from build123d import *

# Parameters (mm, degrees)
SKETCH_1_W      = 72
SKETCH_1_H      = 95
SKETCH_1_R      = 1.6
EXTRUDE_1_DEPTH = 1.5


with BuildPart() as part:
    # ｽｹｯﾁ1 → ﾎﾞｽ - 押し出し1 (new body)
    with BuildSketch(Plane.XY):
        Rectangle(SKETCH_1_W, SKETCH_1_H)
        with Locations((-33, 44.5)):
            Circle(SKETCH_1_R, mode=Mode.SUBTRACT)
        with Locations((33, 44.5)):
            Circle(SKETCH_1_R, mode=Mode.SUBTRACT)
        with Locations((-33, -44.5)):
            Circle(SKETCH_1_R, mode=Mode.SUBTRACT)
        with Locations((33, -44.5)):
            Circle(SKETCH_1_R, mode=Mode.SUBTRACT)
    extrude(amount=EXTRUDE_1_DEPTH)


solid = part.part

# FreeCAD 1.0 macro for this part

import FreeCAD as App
import Part
import Sketcher
Q = App.Units.Quantity

doc = App.newDocument("Part")
params = doc.addObject("Spreadsheet::Sheet", "Params")
for row, (alias, value) in enumerate([
    ("sketch1_diameter", "3.2 mm"),
    ("sketch1_width", "72 mm"),
    ("sketch1_height", "95 mm"),
    ("pad1_length", "1.5 mm"),
], start=1):
    params.set(f"A{row}", alias)
    params.set(f"B{row}", "=" + value)
    params.setAlias(f"B{row}", alias)

body = doc.addObject("PartDesign::Body", "Body")

sketch1 = doc.addObject("Sketcher::SketchObject", "Sketch")
body.addObject(sketch1)
sketch1.AttachmentSupport = (doc.XY_Plane, [""])
sketch1.MapMode = "FlatFace"
sketch1.addGeometry([
    Part.LineSegment(App.Vector(-36, 47.5, 0), App.Vector(-36, -47.5, 0)),
    Part.LineSegment(App.Vector(-36, -47.5, 0), App.Vector(36, -47.5, 0)),
    Part.LineSegment(App.Vector(36, -47.5, 0), App.Vector(36, 47.5, 0)),
    Part.LineSegment(App.Vector(36, 47.5, 0), App.Vector(-36, 47.5, 0)),
    Part.Circle(App.Vector(-33, -44.5, 0), App.Vector(0, 0, 1), 1.6),
    Part.Circle(App.Vector(33, -44.5, 0), App.Vector(0, 0, 1), 1.6),
    Part.Circle(App.Vector(-33, 44.5, 0), App.Vector(0, 0, 1), 1.6),
    Part.Circle(App.Vector(33, 44.5, 0), App.Vector(0, 0, 1), 1.6),
], False)
sketch1.addConstraint([
    Sketcher.Constraint("Coincident", 0, 2, 1, 1),
    Sketcher.Constraint("Coincident", 1, 2, 2, 1),
    Sketcher.Constraint("Coincident", 2, 2, 3, 1),
    Sketcher.Constraint("Coincident", 3, 2, 0, 1),
    Sketcher.Constraint("Vertical", 0),
    Sketcher.Constraint("Horizontal", 1),
    Sketcher.Constraint("Vertical", 2),
    Sketcher.Constraint("Horizontal", 3),
    Sketcher.Constraint("Equal", 4, 5),
    Sketcher.Constraint("Equal", 5, 6),
    Sketcher.Constraint("Equal", 6, 7),
    Sketcher.Constraint("Symmetric", 5, 3, 6, 3, -1, 1),
    Sketcher.Constraint("Symmetric", 4, 3, 7, 3, -1, 1),
    Sketcher.Constraint("Symmetric", 0, 2, 2, 2, -1, 1),
    Sketcher.Constraint("Symmetric", 4, 3, 5, 3, -2),
    Sketcher.Constraint("Diameter", 4, Q("3.2 mm")),
    Sketcher.Constraint("DistanceX", 1, 1, 1, 2, Q("72 mm")),
    Sketcher.Constraint("DistanceY", 0, 2, 0, 1, Q("95 mm")),
    Sketcher.Constraint("DistanceX", 4, 3, -1, 1, Q("33 mm")),
    Sketcher.Constraint("DistanceY", 4, 3, 6, 3, Q("89 mm")),
])
sketch1.setExpression("Constraints[15]", "Params.sketch1_diameter")
sketch1.setExpression("Constraints[16]", "Params.sketch1_width")
sketch1.setExpression("Constraints[17]", "Params.sketch1_height")
pad1 = doc.addObject("PartDesign::Pad", "Pad")
body.addObject(pad1)
pad1.Profile = sketch1
pad1.setExpression("Length", "Params.pad1_length")

doc.recompute()
